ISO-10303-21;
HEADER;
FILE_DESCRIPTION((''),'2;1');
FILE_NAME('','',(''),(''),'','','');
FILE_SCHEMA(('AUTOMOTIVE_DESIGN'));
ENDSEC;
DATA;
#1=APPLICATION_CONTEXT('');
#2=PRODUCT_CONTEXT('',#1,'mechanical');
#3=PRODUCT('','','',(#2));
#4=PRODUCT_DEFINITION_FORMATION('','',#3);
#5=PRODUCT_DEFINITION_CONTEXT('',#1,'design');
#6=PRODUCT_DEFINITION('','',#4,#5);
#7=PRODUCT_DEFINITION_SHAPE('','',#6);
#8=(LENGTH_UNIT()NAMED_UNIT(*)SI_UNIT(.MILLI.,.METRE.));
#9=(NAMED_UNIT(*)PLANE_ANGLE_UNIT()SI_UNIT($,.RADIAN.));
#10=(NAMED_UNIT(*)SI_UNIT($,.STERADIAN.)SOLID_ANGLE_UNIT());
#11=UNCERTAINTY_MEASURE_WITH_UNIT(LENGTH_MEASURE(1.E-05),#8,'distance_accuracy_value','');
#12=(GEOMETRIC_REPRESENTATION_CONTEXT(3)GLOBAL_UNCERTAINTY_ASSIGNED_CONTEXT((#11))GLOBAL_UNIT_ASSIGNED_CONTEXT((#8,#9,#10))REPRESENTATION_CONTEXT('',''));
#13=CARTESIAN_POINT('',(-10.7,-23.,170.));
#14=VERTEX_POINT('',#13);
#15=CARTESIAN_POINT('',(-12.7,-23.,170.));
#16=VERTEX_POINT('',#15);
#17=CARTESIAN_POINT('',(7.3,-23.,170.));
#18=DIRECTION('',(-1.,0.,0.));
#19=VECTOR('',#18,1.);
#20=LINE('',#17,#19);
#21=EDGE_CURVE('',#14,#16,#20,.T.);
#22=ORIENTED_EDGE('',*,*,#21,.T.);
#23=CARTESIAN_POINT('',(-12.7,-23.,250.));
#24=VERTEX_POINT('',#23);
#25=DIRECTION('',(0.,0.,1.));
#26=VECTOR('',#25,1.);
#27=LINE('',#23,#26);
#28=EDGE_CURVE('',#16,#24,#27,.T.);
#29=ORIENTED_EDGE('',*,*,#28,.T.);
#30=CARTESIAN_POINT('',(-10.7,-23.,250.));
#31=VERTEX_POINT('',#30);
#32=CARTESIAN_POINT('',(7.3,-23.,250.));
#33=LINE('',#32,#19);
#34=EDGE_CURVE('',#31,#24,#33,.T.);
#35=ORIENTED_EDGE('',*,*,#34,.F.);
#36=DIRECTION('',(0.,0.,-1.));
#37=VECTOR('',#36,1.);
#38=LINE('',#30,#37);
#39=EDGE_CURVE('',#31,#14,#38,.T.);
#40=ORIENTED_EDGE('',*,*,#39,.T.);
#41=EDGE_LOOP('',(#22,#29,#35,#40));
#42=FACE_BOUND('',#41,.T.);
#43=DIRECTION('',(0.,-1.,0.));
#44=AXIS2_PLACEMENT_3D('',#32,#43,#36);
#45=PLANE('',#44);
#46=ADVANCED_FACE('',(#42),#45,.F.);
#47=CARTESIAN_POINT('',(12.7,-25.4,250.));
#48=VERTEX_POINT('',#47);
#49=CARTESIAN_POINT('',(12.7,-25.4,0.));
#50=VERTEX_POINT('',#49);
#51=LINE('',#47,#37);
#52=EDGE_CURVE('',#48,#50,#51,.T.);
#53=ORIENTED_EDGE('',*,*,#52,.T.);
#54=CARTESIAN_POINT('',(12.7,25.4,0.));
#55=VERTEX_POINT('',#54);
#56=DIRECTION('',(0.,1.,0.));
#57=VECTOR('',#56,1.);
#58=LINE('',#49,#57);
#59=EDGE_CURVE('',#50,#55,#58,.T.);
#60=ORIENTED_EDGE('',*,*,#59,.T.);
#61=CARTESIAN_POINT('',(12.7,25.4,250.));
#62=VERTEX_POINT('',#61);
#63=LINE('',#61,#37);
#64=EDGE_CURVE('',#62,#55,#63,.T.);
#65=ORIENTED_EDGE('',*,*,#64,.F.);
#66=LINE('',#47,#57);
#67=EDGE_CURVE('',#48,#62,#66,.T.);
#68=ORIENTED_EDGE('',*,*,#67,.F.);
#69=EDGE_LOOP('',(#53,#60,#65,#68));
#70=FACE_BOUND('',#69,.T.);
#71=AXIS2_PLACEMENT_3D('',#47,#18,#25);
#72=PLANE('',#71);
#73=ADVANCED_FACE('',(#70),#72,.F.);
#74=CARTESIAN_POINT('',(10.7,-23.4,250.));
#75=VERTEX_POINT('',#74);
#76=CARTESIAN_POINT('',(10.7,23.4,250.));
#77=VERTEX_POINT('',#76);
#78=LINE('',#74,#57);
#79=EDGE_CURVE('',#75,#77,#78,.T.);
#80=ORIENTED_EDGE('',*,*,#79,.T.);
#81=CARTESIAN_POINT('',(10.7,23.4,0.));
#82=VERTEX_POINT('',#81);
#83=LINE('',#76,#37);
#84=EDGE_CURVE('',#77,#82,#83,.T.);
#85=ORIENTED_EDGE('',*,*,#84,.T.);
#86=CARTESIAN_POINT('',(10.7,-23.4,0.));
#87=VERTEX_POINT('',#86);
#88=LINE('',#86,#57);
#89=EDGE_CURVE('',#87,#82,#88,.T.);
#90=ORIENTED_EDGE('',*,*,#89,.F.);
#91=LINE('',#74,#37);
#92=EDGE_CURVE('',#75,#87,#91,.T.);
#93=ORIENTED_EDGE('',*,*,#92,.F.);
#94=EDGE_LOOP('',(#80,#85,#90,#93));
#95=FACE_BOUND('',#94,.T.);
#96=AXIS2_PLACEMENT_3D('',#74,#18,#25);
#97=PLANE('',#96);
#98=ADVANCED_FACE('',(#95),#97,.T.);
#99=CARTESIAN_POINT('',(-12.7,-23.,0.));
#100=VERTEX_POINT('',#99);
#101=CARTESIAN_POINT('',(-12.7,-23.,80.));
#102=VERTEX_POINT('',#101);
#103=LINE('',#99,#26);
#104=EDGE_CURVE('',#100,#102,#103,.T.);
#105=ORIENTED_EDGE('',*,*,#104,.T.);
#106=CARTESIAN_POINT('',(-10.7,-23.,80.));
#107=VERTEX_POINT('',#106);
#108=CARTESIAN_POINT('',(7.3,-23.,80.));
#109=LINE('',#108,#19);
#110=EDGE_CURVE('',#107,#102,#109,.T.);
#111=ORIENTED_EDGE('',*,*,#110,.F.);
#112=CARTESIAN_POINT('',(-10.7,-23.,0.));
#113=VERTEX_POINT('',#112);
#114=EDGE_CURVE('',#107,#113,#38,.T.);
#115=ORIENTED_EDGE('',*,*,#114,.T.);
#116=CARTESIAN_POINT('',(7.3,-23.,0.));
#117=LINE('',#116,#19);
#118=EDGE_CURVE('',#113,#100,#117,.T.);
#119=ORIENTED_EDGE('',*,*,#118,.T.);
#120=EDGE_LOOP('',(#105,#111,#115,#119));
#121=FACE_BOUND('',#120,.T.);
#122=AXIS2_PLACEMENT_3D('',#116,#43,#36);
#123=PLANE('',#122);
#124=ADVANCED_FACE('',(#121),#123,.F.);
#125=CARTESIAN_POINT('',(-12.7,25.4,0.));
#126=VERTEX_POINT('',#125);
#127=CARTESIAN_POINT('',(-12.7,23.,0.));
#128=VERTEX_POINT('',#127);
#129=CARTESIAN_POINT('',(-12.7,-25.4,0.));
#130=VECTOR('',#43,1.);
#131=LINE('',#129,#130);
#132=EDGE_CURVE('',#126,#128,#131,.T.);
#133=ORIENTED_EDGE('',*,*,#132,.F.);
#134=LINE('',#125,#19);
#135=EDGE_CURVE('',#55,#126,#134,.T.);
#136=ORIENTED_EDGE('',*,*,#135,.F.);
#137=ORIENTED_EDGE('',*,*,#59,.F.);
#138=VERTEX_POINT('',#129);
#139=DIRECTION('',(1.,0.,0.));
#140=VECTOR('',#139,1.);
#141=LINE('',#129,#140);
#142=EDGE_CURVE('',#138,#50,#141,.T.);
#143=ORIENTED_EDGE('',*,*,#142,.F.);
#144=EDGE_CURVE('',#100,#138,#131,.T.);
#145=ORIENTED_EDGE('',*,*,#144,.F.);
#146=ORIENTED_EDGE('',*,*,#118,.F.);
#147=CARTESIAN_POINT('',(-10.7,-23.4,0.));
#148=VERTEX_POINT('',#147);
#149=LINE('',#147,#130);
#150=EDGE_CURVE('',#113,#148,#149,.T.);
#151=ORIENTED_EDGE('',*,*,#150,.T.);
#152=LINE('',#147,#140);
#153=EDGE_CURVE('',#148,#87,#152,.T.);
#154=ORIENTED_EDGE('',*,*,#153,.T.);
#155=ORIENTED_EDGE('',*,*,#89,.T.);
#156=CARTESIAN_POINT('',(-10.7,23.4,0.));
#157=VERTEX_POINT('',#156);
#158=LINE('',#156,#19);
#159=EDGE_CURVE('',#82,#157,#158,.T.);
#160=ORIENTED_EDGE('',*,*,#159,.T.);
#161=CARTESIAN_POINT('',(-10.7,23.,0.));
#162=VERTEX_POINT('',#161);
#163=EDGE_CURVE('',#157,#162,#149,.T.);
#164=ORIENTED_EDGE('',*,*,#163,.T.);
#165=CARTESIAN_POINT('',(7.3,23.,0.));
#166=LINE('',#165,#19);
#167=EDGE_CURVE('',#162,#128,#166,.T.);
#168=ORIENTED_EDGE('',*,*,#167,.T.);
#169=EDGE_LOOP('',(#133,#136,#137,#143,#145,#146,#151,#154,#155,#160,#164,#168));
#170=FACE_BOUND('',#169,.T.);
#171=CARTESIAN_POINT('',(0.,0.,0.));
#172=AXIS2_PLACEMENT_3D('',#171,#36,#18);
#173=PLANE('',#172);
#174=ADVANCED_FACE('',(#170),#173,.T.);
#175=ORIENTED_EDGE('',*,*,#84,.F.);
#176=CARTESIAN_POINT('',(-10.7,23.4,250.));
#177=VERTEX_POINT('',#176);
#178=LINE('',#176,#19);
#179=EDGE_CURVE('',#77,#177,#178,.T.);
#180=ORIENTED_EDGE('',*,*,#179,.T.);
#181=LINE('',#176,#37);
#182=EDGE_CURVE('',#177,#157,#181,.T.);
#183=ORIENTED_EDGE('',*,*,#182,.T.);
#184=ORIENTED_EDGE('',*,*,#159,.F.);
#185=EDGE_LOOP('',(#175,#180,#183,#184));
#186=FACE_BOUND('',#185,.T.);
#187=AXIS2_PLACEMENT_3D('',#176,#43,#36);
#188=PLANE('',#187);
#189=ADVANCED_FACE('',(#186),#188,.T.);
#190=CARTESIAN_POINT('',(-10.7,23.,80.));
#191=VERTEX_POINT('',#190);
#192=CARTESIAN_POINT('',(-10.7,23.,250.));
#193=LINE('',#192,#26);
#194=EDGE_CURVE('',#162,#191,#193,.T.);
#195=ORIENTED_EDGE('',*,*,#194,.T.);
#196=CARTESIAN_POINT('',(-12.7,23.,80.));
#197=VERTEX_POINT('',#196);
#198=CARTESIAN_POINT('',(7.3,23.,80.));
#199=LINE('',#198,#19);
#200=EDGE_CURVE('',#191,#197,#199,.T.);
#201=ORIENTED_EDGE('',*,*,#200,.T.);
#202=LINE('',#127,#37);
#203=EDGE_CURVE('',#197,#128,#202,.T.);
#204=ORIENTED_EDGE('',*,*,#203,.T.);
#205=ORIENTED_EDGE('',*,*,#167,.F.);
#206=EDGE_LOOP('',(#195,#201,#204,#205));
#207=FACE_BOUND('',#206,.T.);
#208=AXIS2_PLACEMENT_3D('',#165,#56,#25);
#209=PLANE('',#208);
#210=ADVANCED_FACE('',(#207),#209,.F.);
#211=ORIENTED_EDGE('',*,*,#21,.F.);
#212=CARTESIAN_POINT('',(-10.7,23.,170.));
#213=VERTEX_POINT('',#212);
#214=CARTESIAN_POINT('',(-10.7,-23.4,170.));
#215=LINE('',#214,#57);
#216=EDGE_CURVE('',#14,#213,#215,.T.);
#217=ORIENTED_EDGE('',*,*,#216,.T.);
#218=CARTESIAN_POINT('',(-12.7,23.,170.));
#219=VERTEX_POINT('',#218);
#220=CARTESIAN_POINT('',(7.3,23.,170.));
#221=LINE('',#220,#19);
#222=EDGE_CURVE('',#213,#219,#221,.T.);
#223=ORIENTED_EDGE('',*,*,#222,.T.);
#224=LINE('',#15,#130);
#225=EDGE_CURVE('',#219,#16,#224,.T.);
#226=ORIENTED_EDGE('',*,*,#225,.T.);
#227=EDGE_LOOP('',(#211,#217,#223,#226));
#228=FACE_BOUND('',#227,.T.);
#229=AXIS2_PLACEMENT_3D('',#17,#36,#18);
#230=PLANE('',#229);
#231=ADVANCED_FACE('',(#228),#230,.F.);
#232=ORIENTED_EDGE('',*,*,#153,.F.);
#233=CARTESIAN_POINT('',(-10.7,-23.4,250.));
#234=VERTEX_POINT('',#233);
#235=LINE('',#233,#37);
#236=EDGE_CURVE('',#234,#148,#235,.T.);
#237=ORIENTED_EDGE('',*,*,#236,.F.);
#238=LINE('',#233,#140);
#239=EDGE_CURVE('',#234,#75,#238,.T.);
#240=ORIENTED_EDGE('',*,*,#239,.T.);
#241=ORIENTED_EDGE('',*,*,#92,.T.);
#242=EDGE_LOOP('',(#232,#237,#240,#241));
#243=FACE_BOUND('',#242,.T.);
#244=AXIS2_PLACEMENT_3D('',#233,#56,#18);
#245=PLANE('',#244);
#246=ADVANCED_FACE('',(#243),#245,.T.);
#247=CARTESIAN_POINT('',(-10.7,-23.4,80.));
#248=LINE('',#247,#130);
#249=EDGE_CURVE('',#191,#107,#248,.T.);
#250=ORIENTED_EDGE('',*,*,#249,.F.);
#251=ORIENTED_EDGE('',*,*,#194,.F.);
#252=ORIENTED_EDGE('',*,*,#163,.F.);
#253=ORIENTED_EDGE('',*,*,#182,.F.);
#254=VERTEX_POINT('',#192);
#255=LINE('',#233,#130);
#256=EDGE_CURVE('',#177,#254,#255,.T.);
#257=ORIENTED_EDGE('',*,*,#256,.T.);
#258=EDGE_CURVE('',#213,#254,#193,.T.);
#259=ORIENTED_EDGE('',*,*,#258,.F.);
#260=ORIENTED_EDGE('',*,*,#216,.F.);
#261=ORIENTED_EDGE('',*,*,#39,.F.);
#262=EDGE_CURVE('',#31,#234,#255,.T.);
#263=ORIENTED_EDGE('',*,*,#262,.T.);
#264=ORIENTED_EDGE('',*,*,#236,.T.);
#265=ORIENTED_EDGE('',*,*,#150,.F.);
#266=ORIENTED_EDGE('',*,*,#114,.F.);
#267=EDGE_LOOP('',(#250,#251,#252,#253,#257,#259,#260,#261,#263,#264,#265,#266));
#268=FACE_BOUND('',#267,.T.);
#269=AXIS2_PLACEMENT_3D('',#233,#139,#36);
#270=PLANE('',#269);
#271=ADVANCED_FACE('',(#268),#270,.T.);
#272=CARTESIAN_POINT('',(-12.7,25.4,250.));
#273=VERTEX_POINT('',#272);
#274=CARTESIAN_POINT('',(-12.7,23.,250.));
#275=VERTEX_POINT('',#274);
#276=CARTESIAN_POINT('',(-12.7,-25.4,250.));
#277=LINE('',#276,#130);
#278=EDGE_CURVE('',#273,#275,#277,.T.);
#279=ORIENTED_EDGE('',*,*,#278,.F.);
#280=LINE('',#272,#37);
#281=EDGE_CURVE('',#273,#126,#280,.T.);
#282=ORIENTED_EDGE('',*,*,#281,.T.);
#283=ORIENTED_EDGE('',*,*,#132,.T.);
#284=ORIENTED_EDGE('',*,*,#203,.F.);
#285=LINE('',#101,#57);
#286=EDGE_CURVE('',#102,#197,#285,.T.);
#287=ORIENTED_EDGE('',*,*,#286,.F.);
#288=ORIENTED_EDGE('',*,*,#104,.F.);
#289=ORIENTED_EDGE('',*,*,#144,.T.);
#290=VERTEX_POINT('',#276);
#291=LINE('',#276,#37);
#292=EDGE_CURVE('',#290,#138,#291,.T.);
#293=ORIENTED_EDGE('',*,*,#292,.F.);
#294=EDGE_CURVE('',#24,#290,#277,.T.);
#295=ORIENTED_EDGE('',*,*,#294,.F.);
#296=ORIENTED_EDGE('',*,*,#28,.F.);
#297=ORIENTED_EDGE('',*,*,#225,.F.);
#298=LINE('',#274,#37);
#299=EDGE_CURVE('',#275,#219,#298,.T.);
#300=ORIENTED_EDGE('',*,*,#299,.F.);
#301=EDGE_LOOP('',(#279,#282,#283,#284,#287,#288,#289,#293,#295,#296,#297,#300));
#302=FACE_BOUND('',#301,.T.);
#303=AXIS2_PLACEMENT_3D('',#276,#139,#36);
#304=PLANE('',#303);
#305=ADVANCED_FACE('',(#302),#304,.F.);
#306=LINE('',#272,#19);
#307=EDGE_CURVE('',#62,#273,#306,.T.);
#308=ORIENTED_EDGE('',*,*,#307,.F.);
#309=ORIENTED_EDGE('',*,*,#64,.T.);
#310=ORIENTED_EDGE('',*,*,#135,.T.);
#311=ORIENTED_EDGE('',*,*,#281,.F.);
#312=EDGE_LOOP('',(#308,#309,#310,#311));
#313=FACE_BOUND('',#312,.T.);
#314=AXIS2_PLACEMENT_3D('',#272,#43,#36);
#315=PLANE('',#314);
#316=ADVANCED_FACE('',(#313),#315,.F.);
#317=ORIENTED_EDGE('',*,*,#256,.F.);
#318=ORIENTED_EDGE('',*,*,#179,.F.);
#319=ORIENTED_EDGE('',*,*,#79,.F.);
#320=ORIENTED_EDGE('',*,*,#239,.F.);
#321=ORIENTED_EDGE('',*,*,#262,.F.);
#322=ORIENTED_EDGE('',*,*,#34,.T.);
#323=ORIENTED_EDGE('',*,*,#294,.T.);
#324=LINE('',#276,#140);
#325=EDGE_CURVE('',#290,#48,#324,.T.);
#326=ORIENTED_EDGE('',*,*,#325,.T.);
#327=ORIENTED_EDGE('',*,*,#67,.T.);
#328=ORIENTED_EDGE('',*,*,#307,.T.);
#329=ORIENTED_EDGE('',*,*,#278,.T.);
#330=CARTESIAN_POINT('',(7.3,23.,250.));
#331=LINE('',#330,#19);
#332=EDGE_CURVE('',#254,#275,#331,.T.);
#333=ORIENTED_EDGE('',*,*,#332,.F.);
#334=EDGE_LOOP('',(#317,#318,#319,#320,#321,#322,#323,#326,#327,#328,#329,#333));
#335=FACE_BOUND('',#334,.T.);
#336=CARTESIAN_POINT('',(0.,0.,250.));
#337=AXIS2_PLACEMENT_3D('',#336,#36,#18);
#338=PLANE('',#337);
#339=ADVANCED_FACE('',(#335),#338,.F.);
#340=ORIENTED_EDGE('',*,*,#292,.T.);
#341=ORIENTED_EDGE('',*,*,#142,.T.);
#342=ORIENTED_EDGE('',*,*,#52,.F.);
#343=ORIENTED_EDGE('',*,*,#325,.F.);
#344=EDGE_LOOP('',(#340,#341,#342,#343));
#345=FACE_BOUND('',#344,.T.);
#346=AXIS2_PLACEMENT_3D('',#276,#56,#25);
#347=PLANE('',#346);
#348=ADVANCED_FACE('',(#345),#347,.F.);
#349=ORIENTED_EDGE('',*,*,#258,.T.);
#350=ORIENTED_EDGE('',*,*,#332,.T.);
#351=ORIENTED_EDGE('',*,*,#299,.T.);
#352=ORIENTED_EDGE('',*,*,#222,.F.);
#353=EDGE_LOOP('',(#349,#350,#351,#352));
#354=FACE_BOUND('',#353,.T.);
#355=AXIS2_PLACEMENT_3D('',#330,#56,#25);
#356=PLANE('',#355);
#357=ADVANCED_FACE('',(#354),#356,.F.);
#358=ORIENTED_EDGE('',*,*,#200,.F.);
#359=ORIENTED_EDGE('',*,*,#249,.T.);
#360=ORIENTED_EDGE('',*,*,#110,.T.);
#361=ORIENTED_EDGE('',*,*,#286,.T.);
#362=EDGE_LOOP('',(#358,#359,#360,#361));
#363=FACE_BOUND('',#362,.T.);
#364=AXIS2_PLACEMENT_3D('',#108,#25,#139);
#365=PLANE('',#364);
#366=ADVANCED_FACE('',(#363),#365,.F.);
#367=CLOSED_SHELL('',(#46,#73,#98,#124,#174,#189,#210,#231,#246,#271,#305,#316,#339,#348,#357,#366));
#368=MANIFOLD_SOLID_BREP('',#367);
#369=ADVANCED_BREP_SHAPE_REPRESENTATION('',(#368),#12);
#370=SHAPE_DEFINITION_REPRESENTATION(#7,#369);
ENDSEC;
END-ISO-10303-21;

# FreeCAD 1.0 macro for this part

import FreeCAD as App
import Part
import Sketcher
Q = App.Units.Quantity


def add_polygon(sketch, points):
    """Adds a closed chain of lines whose ends are joined by coincident constraints."""
    first, n = sketch.GeometryCount, len(points)
    for a, b in zip(points, points[1:] + points[:1]):
        sketch.addGeometry(Part.LineSegment(App.Vector(*a, 0), App.Vector(*b, 0)), False)
    for i in range(n):
        sketch.addConstraint(Sketcher.Constraint("Coincident", first + i, 2, first + (i + 1) % n, 1))

doc = App.newDocument("Part")
body = doc.addObject("PartDesign::Body", "Body")

# Sketch on XY plane
sketch1 = body.newObject("Sketcher::SketchObject", "Sketch")
sketch1.AttachmentSupport = (doc.getObject("XY_Plane"), [""])
sketch1.MapMode = "FlatFace"
add_polygon(sketch1, [(-12.7, 25.4), (-12.7, -25.4), (12.7, -25.4), (12.7, 25.4)])  # lines 0-3
add_polygon(sketch1, [(10.7, -23.4), (-10.7, -23.4), (-10.7, 23.4), (10.7, 23.4)])  # lines 4-7
sketch1.addConstraint(Sketcher.Constraint("Vertical", 0))
sketch1.addConstraint(Sketcher.Constraint("Horizontal", 1))
sketch1.addConstraint(Sketcher.Constraint("Vertical", 2))
sketch1.addConstraint(Sketcher.Constraint("Horizontal", 3))
sketch1.addConstraint(Sketcher.Constraint("Horizontal", 4))
sketch1.addConstraint(Sketcher.Constraint("Vertical", 5))
sketch1.addConstraint(Sketcher.Constraint("Horizontal", 6))
sketch1.addConstraint(Sketcher.Constraint("Vertical", 7))
sketch1.addConstraint(Sketcher.Constraint("Symmetric", 0, 2, 2, 2, -1, 1))
sketch1.addConstraint(Sketcher.Constraint("Symmetric", 4, 2, 6, 2, -1, 1))
sketch1.addConstraint(Sketcher.Constraint("DistanceX", 1, 1, 1, 2, Q("25.4 mm")))
sketch1.addConstraint(Sketcher.Constraint("DistanceX", 4, 2, 4, 1, Q("21.4 mm")))
sketch1.addConstraint(Sketcher.Constraint("DistanceY", 0, 2, 0, 1, Q("50.8 mm")))
sketch1.addConstraint(Sketcher.Constraint("DistanceY", 5, 1, 5, 2, Q("46.8 mm")))
pad1 = body.newObject("PartDesign::Pad", "Pad")
pad1.Profile = sketch1
pad1.Length = 250

# Sketch on YZ plane
sketch2 = body.newObject("Sketcher::SketchObject", "Sketch001")
sketch2.AttachmentSupport = (doc.getObject("YZ_Plane"), [""])
sketch2.MapMode = "FlatFace"
sketch2.AttachmentOffset = App.Placement(App.Vector(0, 0, -12.7), App.Rotation())
add_polygon(sketch2, [(23, 0), (-23, 0), (-23, 80), (23, 80)])  # lines 0-3
add_polygon(sketch2, [(23, 170), (-23, 170), (-23, 250), (23, 250)])  # lines 4-7
sketch2.addConstraint(Sketcher.Constraint("Horizontal", 0))
sketch2.addConstraint(Sketcher.Constraint("Vertical", 1))
sketch2.addConstraint(Sketcher.Constraint("Horizontal", 2))
sketch2.addConstraint(Sketcher.Constraint("Vertical", 3))
sketch2.addConstraint(Sketcher.Constraint("Horizontal", 4))
sketch2.addConstraint(Sketcher.Constraint("Vertical", 5))
sketch2.addConstraint(Sketcher.Constraint("Horizontal", 6))
sketch2.addConstraint(Sketcher.Constraint("Vertical", 7))
sketch2.addConstraint(Sketcher.Constraint("Symmetric", 0, 2, 3, 2, -1, 1))
sketch2.addConstraint(Sketcher.Constraint("Vertical", 1, 2, 4, 2))
sketch2.addConstraint(Sketcher.Constraint("Vertical", 3, 2, 6, 2))
sketch2.addConstraint(Sketcher.Constraint("Equal", 3, 5))
sketch2.addConstraint(Sketcher.Constraint("DistanceX", 0, 2, 0, 1, Q("46 mm")))
sketch2.addConstraint(Sketcher.Constraint("DistanceY", 1, 1, 1, 2, Q("80 mm")))
sketch2.addConstraint(Sketcher.Constraint("DistanceY", -1, 1, 4, 2, Q("170 mm")))
pocket1 = body.newObject("PartDesign::Pocket", "Pocket")
pocket1.Profile = sketch2
pocket1.Length = 20
pocket1.Reversed = True

doc.recompute()
